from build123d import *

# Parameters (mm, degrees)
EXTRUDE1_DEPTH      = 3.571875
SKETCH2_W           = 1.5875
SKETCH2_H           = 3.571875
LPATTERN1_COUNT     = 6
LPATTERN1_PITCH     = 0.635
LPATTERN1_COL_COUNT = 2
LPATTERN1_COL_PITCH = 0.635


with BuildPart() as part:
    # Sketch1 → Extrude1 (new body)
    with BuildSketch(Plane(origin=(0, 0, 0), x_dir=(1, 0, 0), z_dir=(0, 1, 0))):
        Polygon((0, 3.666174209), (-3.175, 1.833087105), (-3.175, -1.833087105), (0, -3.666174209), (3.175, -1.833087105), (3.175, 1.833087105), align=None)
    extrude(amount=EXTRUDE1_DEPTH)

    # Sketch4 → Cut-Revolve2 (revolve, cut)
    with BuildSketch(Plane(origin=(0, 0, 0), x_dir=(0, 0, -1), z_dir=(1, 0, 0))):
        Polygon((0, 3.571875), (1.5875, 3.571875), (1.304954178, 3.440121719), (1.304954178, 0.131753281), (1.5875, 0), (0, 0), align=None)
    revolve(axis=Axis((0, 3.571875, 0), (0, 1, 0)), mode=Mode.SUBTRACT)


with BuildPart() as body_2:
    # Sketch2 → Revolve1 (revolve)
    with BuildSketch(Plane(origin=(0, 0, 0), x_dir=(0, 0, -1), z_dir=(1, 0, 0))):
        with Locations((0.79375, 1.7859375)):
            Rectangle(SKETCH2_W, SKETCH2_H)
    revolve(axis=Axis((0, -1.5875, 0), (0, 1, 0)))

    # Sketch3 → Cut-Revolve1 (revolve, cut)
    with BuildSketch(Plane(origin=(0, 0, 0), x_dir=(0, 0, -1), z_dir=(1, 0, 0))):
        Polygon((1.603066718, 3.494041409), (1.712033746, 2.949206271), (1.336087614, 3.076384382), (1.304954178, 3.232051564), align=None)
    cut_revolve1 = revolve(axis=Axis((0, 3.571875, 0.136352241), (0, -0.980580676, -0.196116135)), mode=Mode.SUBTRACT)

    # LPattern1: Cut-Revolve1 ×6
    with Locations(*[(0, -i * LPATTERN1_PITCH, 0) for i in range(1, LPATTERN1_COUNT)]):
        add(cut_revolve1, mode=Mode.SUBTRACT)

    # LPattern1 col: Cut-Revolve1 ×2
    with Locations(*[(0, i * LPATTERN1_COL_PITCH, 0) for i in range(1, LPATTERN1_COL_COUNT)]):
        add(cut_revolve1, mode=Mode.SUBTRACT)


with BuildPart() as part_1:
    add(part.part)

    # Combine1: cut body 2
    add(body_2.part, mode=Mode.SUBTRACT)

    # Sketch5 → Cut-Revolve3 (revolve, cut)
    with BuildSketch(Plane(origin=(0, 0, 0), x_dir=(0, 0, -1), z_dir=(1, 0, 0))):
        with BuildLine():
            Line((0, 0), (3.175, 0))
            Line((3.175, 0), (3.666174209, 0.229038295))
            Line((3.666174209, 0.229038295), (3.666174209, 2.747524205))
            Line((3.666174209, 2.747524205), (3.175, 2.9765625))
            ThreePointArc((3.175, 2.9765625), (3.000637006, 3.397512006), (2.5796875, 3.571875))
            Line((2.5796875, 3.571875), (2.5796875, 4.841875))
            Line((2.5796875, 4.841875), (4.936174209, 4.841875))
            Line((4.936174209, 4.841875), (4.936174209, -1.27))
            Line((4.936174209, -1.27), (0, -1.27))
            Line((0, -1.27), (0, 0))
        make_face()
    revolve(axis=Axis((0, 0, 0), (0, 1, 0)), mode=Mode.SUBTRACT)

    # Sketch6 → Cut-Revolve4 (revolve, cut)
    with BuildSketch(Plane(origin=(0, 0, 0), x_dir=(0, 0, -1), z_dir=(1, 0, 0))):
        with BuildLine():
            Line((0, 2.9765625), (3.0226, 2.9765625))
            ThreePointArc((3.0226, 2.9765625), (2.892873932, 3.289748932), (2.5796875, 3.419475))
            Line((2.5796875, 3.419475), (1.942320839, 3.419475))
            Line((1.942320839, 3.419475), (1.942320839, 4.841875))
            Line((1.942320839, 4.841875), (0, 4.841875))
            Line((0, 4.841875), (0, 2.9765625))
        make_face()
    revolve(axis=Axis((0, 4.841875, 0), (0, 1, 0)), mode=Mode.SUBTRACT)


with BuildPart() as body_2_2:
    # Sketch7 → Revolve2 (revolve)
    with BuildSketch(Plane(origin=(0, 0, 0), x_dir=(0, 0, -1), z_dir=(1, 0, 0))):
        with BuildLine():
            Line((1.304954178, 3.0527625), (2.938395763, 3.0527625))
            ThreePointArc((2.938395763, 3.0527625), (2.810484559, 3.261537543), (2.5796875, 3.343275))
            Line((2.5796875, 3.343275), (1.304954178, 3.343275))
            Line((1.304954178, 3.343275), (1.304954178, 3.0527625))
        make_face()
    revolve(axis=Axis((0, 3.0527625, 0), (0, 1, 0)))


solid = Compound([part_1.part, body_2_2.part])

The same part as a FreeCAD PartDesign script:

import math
import FreeCAD as App
import Part
import Sketcher
from FreeCAD import Vector
Q = App.Units.Quantity

doc = App.newDocument("Part")
body = doc.addObject("PartDesign::Body", "Body")

sketch1 = body.newObject("Sketcher::SketchObject", "Sketch")
sketch1.AttachmentSupport = (doc.getObject("XZ_Plane"), [""])
sketch1.MapMode = "FlatFace"
sketch1.addGeometry(Part.LineSegment(Vector(0, -3.7, 0), Vector(-3.2, -1.8, 0)), False)
sketch1.addGeometry(Part.LineSegment(Vector(-3.2, -1.8, 0), Vector(-3.2, 1.8, 0)), False)
sketch1.addGeometry(Part.LineSegment(Vector(-3.2, 1.8, 0), Vector(0, 3.7, 0)), False)
sketch1.addGeometry(Part.LineSegment(Vector(0, 3.7, 0), Vector(3.2, 1.8, 0)), False)
sketch1.addGeometry(Part.LineSegment(Vector(3.2, 1.8, 0), Vector(3.2, -1.8, 0)), False)
sketch1.addGeometry(Part.LineSegment(Vector(3.2, -1.8, 0), Vector(0, -3.7, 0)), False)
sketch1.addConstraint(Sketcher.Constraint("Coincident", 0, 2, 1, 1))
sketch1.addConstraint(Sketcher.Constraint("Coincident", 1, 2, 2, 1))
sketch1.addConstraint(Sketcher.Constraint("Coincident", 2, 2, 3, 1))
sketch1.addConstraint(Sketcher.Constraint("Coincident", 3, 2, 4, 1))
sketch1.addConstraint(Sketcher.Constraint("Coincident", 4, 2, 5, 1))
sketch1.addConstraint(Sketcher.Constraint("Coincident", 5, 2, 0, 1))
sketch1.addConstraint(Sketcher.Constraint("Vertical", 1))
sketch1.addConstraint(Sketcher.Constraint("Vertical", 4))
sketch1.addConstraint(Sketcher.Constraint("Symmetric", 0, 2, 3, 2, -1, 1))
sketch1.addConstraint(Sketcher.Constraint("Symmetric", 2, 2, 5, 2, -1, 1))
sketch1.addConstraint(Sketcher.Constraint("PointOnObject", 2, 2, -2))
sketch1.addConstraint(Sketcher.Constraint("Parallel", 2, 5))
sketch1.addConstraint(Sketcher.Constraint("Horizontal", 1, 2, 3, 2))
sketch1.addConstraint(Sketcher.Constraint("Angle", 0, Q("150 deg")))
sketch1.addConstraint(Sketcher.Constraint("DistanceX", 1, 2, 3, 2, Q("0.25 in")))
sketch1.addConstraint(Sketcher.Constraint("DistanceY", 1, 1, 1, 2, Q("3.666174 mm")))
pad1 = body.newObject("PartDesign::Pad", "Pad")
pad1.Profile = sketch1
pad1.Length = Q("0.140625 in")
pad1.Reversed = True

sketch2 = body.newObject("Sketcher::SketchObject", "Sketch001")
sketch2.AttachmentSupport = (doc.getObject("YZ_Plane"), [""])
sketch2.MapMode = "FlatFace"
sketch2.addGeometry(Part.LineSegment(Vector(3.57, -1.59, 0), Vector(3.57, 0, 0)), False)
sketch2.addGeometry(Part.LineSegment(Vector(3.57, 0, 0), Vector(0, 0, 0)), False)
sketch2.addGeometry(Part.LineSegment(Vector(0, 0, 0), Vector(0, -1.59, 0)), False)
sketch2.addGeometry(Part.LineSegment(Vector(0, -1.59, 0), Vector(0.13, -1.3, 0)), False)
sketch2.addGeometry(Part.LineSegment(Vector(0.13, -1.3, 0), Vector(3.44, -1.3, 0)), False)
sketch2.addGeometry(Part.LineSegment(Vector(3.44, -1.3, 0), Vector(3.57, -1.59, 0)), False)
sketch2.addConstraint(Sketcher.Constraint("Coincident", 0, 2, 1, 1))
sketch2.addConstraint(Sketcher.Constraint("Coincident", 1, 2, 2, 1))
sketch2.addConstraint(Sketcher.Constraint("Coincident", 2, 2, 3, 1))
sketch2.addConstraint(Sketcher.Constraint("Coincident", 3, 2, 4, 1))
sketch2.addConstraint(Sketcher.Constraint("Coincident", 4, 2, 5, 1))
sketch2.addConstraint(Sketcher.Constraint("Coincident", 5, 2, 0, 1))
sketch2.addConstraint(Sketcher.Constraint("Vertical", 0))
sketch2.addConstraint(Sketcher.Constraint("Horizontal", 1))
sketch2.addConstraint(Sketcher.Constraint("Vertical", 2))
sketch2.addConstraint(Sketcher.Constraint("Horizontal", 4))
sketch2.addConstraint(Sketcher.Constraint("Coincident", 1, 2, -1, 1))
sketch2.addConstraint(Sketcher.Constraint("Horizontal", 2, 2, 5, 2))
sketch2.addConstraint(Sketcher.Constraint("Equal", 3, 5))
sketch2.addConstraint(Sketcher.Constraint("Angle", 3, Q("65 deg")))
sketch2.addConstraint(Sketcher.Constraint("DistanceX", 1, 2, 1, 1, Q("0.140625 in")))
sketch2.addConstraint(Sketcher.Constraint("DistanceY", 0, 1, 0, 2, Q("0.0625 in")))
sketch2.addConstraint(Sketcher.Constraint("DistanceX", 4, 1, 4, 2, Q("3.308368 mm")))
groove = body.newObject("PartDesign::Groove", "Groove")
groove.Profile = sketch2
groove.ReferenceAxis = (sketch2, ["H_Axis"])
groove.Angle = 360
body2 = doc.addObject("PartDesign::Body", "Body001")

sketch3 = body2.newObject("Sketcher::SketchObject", "Sketch002")
sketch3.AttachmentSupport = (doc.getObject("YZ_Plane001"), [""])
sketch3.MapMode = "FlatFace"
sketch3.addGeometry(Part.LineSegment(Vector(3.6, 0, 0), Vector(0, 0, 0)), False)
sketch3.addGeometry(Part.LineSegment(Vector(0, 0, 0), Vector(0, -1.6, 0)), False)
sketch3.addGeometry(Part.LineSegment(Vector(0, -1.6, 0), Vector(3.6, -1.6, 0)), False)
sketch3.addGeometry(Part.LineSegment(Vector(3.6, -1.6, 0), Vector(3.6, 0, 0)), False)
sketch3.addConstraint(Sketcher.Constraint("Coincident", 0, 2, 1, 1))
sketch3.addConstraint(Sketcher.Constraint("Coincident", 1, 2, 2, 1))
sketch3.addConstraint(Sketcher.Constraint("Coincident", 2, 2, 3, 1))
sketch3.addConstraint(Sketcher.Constraint("Coincident", 3, 2, 0, 1))
sketch3.addConstraint(Sketcher.Constraint("Horizontal", 0))
sketch3.addConstraint(Sketcher.Constraint("Vertical", 1))
sketch3.addConstraint(Sketcher.Constraint("Horizontal", 2))
sketch3.addConstraint(Sketcher.Constraint("Vertical", 3))
sketch3.addConstraint(Sketcher.Constraint("Coincident", 0, 2, -1, 1))
sketch3.addConstraint(Sketcher.Constraint("DistanceX", 0, 2, 0, 1, Q("0.140625 in")))
sketch3.addConstraint(Sketcher.Constraint("DistanceY", 1, 2, 1, 1, Q("0.0625 in")))
revolution = body2.newObject("PartDesign::Revolution", "Revolution")
revolution.Profile = sketch3
revolution.ReferenceAxis = (sketch3, ["H_Axis"])
revolution.Angle = 360

sketch4 = body2.newObject("Sketcher::SketchObject", "Sketch003")
sketch4.AttachmentSupport = (doc.getObject("YZ_Plane001"), [""])
sketch4.MapMode = "FlatFace"
sketch4.addGeometry(Part.LineSegment(Vector(2.95, -1.71, 0), Vector(3.49, -1.6, 0)), False)
sketch4.addGeometry(Part.LineSegment(Vector(3.49, -1.6, 0), Vector(3.23, -1.3, 0)), False)
sketch4.addGeometry(Part.LineSegment(Vector(3.23, -1.3, 0), Vector(3.08, -1.34, 0)), False)
sketch4.addGeometry(Part.LineSegment(Vector(3.08, -1.34, 0), Vector(2.95, -1.71, 0)), False)
sketch4.addGeometry(Part.LineSegment(Vector(3.16, 0.05, 0), Vector(2.62, -0.05, 0)), True)
sketch4.addConstraint(Sketcher.Constraint("Coincident", 0, 2, 1, 1))
sketch4.addConstraint(Sketcher.Constraint("Coincident", 1, 2, 2, 1))
sketch4.addConstraint(Sketcher.Constraint("Coincident", 2, 2, 3, 1))
sketch4.addConstraint(Sketcher.Constraint("Coincident", 3, 2, 0, 1))
sketch4.addConstraint(Sketcher.Constraint("Parallel", 0, 2))
sketch4.addConstraint(Sketcher.Constraint("Parallel", 2, 4))
sketch4.addConstraint(Sketcher.Constraint("Equal", 1, 3))
sketch4.addConstraint(Sketcher.Constraint("Equal", 0, 4))
sketch4.addConstraint(Sketcher.Constraint("Distance", 1, Q("0.015625 in")))
sketch4.addConstraint(Sketcher.Constraint("Distance", 2, Q("0.15875 mm")))
sketch4.addConstraint(Sketcher.Constraint("DistanceX", -1, 1, 0, 2, Q("3.494041 mm")))
sketch4.addConstraint(Sketcher.Constraint("DistanceX", -1, 1, 1, 2, Q("3.232052 mm")))
sketch4.addConstraint(Sketcher.Constraint("DistanceX", -1, 1, 4, 1, Q("3.162531 mm")))
sketch4.addConstraint(Sketcher.Constraint("DistanceY", 0, 2, 2, 2, Q("0.266979 mm")))
sketch4.addConstraint(Sketcher.Constraint("DistanceY", 2, 2, 4, 1, Q("1.390571 mm")))
sketch4.addConstraint(Sketcher.Constraint("DistanceY", 0, 2, -1, 1, Q("1.603067 mm")))
groove2 = body2.newObject("PartDesign::Groove", "Groove001")
groove2.Profile = sketch4
groove2.ReferenceAxis = (sketch4, ["Axis0"])
groove2.Angle = 360
doc.recompute()

linearpattern = body2.newObject("PartDesign::LinearPattern", "LinearPattern")
linearpattern.Originals = [groove2]
linearpattern.Direction = (doc.getObject("Y_Axis001"), [""])
linearpattern.Mode = "offset"
linearpattern.Offset = Q("0.025 in")
linearpattern.Occurrences = 6
linearpattern.Reversed = True
body2.Tip = linearpattern
doc.recompute()

linearpattern2 = body2.newObject("PartDesign::LinearPattern", "LinearPattern001")
linearpattern2.Originals = [groove2]
linearpattern2.Direction = (doc.getObject("Y_Axis001"), [""])
linearpattern2.Mode = "offset"
linearpattern2.Offset = Q("0.025 in")
linearpattern2.Occurrences = 2
body2.Tip = linearpattern2
doc.recompute()

boolean = body.newObject("PartDesign::Boolean", "Boolean")
boolean.Type = "Cut"
boolean.addObjects([body2])

sketch5 = body.newObject("Sketcher::SketchObject", "Sketch004")
sketch5.AttachmentSupport = (doc.getObject("YZ_Plane"), [""])
sketch5.MapMode = "FlatFace"
sketch5.addGeometry(Part.LineSegment(Vector(0, -3.2, 0), Vector(0, 0, 0)), False)
sketch5.addGeometry(Part.LineSegment(Vector(0, 0, 0), Vector(-1.3, 0, 0)), False)
sketch5.addGeometry(Part.LineSegment(Vector(-1.3, 0, 0), Vector(-1.3, -4.9, 0)), False)
sketch5.addGeometry(Part.LineSegment(Vector(-1.3, -4.9, 0), Vector(4.8, -4.9, 0)), False)
sketch5.addGeometry(Part.LineSegment(Vector(4.8, -4.9, 0), Vector(4.8, -2.6, 0)), False)
sketch5.addGeometry(Part.LineSegment(Vector(4.8, -2.6, 0), Vector(3.6, -2.6, 0)), False)
sketch5.addGeometry(Part.ArcOfCircle(Part.Circle(Vector(3, -2.6, 0), Vector(0, 0, 1), 0.6), math.radians(-90), math.radians(0)), False)
sketch5.addGeometry(Part.LineSegment(Vector(3, -3.2, 0), Vector(2.7, -3.7, 0)), False)
sketch5.addGeometry(Part.LineSegment(Vector(2.7, -3.7, 0), Vector(0.2, -3.7, 0)), False)
sketch5.addGeometry(Part.LineSegment(Vector(0.2, -3.7, 0), Vector(0, -3.2, 0)), False)
sketch5.addConstraint(Sketcher.Constraint("Coincident", 0, 2, 1, 1))
sketch5.addConstraint(Sketcher.Constraint("Coincident", 1, 2, 2, 1))
sketch5.addConstraint(Sketcher.Constraint("Coincident", 2, 2, 3, 1))
sketch5.addConstraint(Sketcher.Constraint("Coincident", 3, 2, 4, 1))
sketch5.addConstraint(Sketcher.Constraint("Coincident", 4, 2, 5, 1))
sketch5.addConstraint(Sketcher.Constraint("Coincident", 5, 2, 6, 2))
sketch5.addConstraint(Sketcher.Constraint("Coincident", 6, 1, 7, 1))
sketch5.addConstraint(Sketcher.Constraint("Coincident", 7, 2, 8, 1))
sketch5.addConstraint(Sketcher.Constraint("Coincident", 8, 2, 9, 1))
sketch5.addConstraint(Sketcher.Constraint("Coincident", 9, 2, 0, 1))
sketch5.addConstraint(Sketcher.Constraint("Vertical", 0))
sketch5.addConstraint(Sketcher.Constraint("Horizontal", 1))
sketch5.addConstraint(Sketcher.Constraint("Vertical", 2))
sketch5.addConstraint(Sketcher.Constraint("Horizontal", 3))
sketch5.addConstraint(Sketcher.Constraint("Vertical", 4))
sketch5.addConstraint(Sketcher.Constraint("Horizontal", 5))
sketch5.addConstraint(Sketcher.Constraint("Horizontal", 8))
sketch5.addConstraint(Sketcher.Constraint("Coincident", 0, 2, -1, 1))
sketch5.addConstraint(Sketcher.Constraint("Horizontal", 6, 3, 4, 2))
sketch5.addConstraint(Sketcher.Constraint("Horizontal", 6, 1, 9, 2))
sketch5.addConstraint(Sketcher.Constraint("Equal", 1, 5))
sketch5.addConstraint(Sketcher.Constraint("Equal", 7, 9))
sketch5.addConstraint(Sketcher.Constraint("Angle", 7, Q("-115 deg")))
sketch5.addConstraint(Sketcher.Constraint("DistanceX", 1, 2, 1, 1, Q("0.05 in")))
sketch5.addConstraint(Sketcher.Constraint("DistanceY", 0, 1, 0, 2, Q("0.125 in")))
sketch5.addConstraint(Sketcher.Constraint("DistanceY", 3, 2, 7, 2, Q("0.05 in")))
sketch5.addConstraint(Sketcher.Constraint("DistanceX", -1, 1, 5, 2, Q("0.140625 in")))
sketch5.addConstraint(Sketcher.Constraint("Radius", 6, Q("0.595312 mm")))
sketch5.addConstraint(Sketcher.Constraint("Distance", 7, Q("0.541951 mm")))
sketch5.addConstraint(Sketcher.Constraint("DistanceX", 8, 2, 8, 1, Q("2.518486 mm")))
groove3 = body.newObject("PartDesign::Groove", "Groove002")
groove3.Profile = sketch5
groove3.ReferenceAxis = (sketch5, ["H_Axis"])
groove3.Angle = 360

sketch6 = body.newObject("Sketcher::SketchObject", "Sketch005")
sketch6.AttachmentSupport = (doc.getObject("YZ_Plane"), [""])
sketch6.MapMode = "FlatFace"
sketch6.addGeometry(Part.LineSegment(Vector(2.98, 0, 0), Vector(2.98, -3.02, 0)), False)
sketch6.addGeometry(Part.ArcOfCircle(Part.Circle(Vector(2.98, -2.58, 0), Vector(0, 0, 1), 0.44), math.radians(-90), math.radians(0)), False)
sketch6.addGeometry(Part.LineSegment(Vector(3.42, -2.58, 0), Vector(3.42, -1.94, 0)), False)
sketch6.addGeometry(Part.LineSegment(Vector(3.42, -1.94, 0), Vector(4.84, -1.94, 0)), False)
sketch6.addGeometry(Part.LineSegment(Vector(4.84, -1.94, 0), Vector(4.84, 0, 0)), False)
sketch6.addGeometry(Part.LineSegment(Vector(4.84, 0, 0), Vector(2.98, 0, 0)), False)
sketch6.addConstraint(Sketcher.Constraint("Coincident", 0, 2, 1, 1))
sketch6.addConstraint(Sketcher.Constraint("Tangent", 1, 2, 2, 1))
sketch6.addConstraint(Sketcher.Constraint("Coincident", 2, 2, 3, 1))
sketch6.addConstraint(Sketcher.Constraint("Coincident", 3, 2, 4, 1))
sketch6.addConstraint(Sketcher.Constraint("Coincident", 4, 2, 5, 1))
sketch6.addConstraint(Sketcher.Constraint("Coincident", 5, 2, 0, 1))
sketch6.addConstraint(Sketcher.Constraint("Vertical", 0))
sketch6.addConstraint(Sketcher.Constraint("Vertical", 2))
sketch6.addConstraint(Sketcher.Constraint("Horizontal", 3))
sketch6.addConstraint(Sketcher.Constraint("Vertical", 4))
sketch6.addConstraint(Sketcher.Constraint("Horizontal", 5))
sketch6.addConstraint(Sketcher.Constraint("PointOnObject", 4, 2, -1))
sketch6.addConstraint(Sketcher.Constraint("Vertical", 1, 3, 0, 2))
sketch6.addConstraint(Sketcher.Constraint("DistanceX", 3, 1, 3, 2, Q("0.056 in")))
sketch6.addConstraint(Sketcher.Constraint("DistanceY", 0, 2, 0, 1, Q("0.119 in")))
sketch6.addConstraint(Sketcher.Constraint("Radius", 1, Q("0.442913 mm")))
sketch6.addConstraint(Sketcher.Constraint("DistanceY", 4, 1, 4, 2, Q("1.942321 mm")))
sketch6.addConstraint(Sketcher.Constraint("DistanceX", -1, 1, 1, 3, Q("2.976562 mm")))
groove4 = body.newObject("PartDesign::Groove", "Groove003")
groove4.Profile = sketch6
groove4.ReferenceAxis = (sketch6, ["H_Axis"])
groove4.Angle = 360
body3 = doc.addObject("PartDesign::Body", "Body002")

sketch7 = body3.newObject("Sketcher::SketchObject", "Sketch006")
sketch7.AttachmentSupport = (doc.getObject("YZ_Plane002"), [""])
sketch7.MapMode = "FlatFace"
sketch7.addGeometry(Part.LineSegment(Vector(3.05, -1.3, 0), Vector(3.05, -2.94, 0)), False)
sketch7.addGeometry(Part.ArcOfCircle(Part.Circle(Vector(2.98, -2.58, 0), Vector(0, 0, 1), 0.37), math.radians(-78), math.radians(0)), False)
sketch7.addGeometry(Part.LineSegment(Vector(3.34, -2.58, 0), Vector(3.34, -1.3, 0)), False)
sketch7.addGeometry(Part.LineSegment(Vector(3.34, -1.3, 0), Vector(3.05, -1.3, 0)), False)
sketch7.addConstraint(Sketcher.Constraint("Coincident", 0, 2, 1, 1))
sketch7.addConstraint(Sketcher.Constraint("Tangent", 1, 2, 2, 1))
sketch7.addConstraint(Sketcher.Constraint("Coincident", 2, 2, 3, 1))
sketch7.addConstraint(Sketcher.Constraint("Coincident", 3, 2, 0, 1))
sketch7.addConstraint(Sketcher.Constraint("Vertical", 0))
sketch7.addConstraint(Sketcher.Constraint("Vertical", 2))
sketch7.addConstraint(Sketcher.Constraint("Horizontal", 3))
sketch7.addConstraint(Sketcher.Constraint("DistanceX", 1, 3, 0, 2, Q("0.003 in")))
sketch7.addConstraint(Sketcher.Constraint("Radius", 1, Q("0.366713 mm")))
sketch7.addConstraint(Sketcher.Constraint("DistanceY", 0, 2, 0, 1, Q("1.633442 mm")))
sketch7.addConstraint(Sketcher.Constraint("DistanceX", -1, 1, 1, 3, Q("2.976562 mm")))
sketch7.addConstraint(Sketcher.Constraint("DistanceY", 1, 3, -1, 1, Q("2.579687 mm")))
revolution2 = body3.newObject("PartDesign::Revolution", "Revolution001")
revolution2.Profile = sketch7
revolution2.ReferenceAxis = (sketch7, ["H_Axis"])
revolution2.Angle = 360

doc.recompute()
